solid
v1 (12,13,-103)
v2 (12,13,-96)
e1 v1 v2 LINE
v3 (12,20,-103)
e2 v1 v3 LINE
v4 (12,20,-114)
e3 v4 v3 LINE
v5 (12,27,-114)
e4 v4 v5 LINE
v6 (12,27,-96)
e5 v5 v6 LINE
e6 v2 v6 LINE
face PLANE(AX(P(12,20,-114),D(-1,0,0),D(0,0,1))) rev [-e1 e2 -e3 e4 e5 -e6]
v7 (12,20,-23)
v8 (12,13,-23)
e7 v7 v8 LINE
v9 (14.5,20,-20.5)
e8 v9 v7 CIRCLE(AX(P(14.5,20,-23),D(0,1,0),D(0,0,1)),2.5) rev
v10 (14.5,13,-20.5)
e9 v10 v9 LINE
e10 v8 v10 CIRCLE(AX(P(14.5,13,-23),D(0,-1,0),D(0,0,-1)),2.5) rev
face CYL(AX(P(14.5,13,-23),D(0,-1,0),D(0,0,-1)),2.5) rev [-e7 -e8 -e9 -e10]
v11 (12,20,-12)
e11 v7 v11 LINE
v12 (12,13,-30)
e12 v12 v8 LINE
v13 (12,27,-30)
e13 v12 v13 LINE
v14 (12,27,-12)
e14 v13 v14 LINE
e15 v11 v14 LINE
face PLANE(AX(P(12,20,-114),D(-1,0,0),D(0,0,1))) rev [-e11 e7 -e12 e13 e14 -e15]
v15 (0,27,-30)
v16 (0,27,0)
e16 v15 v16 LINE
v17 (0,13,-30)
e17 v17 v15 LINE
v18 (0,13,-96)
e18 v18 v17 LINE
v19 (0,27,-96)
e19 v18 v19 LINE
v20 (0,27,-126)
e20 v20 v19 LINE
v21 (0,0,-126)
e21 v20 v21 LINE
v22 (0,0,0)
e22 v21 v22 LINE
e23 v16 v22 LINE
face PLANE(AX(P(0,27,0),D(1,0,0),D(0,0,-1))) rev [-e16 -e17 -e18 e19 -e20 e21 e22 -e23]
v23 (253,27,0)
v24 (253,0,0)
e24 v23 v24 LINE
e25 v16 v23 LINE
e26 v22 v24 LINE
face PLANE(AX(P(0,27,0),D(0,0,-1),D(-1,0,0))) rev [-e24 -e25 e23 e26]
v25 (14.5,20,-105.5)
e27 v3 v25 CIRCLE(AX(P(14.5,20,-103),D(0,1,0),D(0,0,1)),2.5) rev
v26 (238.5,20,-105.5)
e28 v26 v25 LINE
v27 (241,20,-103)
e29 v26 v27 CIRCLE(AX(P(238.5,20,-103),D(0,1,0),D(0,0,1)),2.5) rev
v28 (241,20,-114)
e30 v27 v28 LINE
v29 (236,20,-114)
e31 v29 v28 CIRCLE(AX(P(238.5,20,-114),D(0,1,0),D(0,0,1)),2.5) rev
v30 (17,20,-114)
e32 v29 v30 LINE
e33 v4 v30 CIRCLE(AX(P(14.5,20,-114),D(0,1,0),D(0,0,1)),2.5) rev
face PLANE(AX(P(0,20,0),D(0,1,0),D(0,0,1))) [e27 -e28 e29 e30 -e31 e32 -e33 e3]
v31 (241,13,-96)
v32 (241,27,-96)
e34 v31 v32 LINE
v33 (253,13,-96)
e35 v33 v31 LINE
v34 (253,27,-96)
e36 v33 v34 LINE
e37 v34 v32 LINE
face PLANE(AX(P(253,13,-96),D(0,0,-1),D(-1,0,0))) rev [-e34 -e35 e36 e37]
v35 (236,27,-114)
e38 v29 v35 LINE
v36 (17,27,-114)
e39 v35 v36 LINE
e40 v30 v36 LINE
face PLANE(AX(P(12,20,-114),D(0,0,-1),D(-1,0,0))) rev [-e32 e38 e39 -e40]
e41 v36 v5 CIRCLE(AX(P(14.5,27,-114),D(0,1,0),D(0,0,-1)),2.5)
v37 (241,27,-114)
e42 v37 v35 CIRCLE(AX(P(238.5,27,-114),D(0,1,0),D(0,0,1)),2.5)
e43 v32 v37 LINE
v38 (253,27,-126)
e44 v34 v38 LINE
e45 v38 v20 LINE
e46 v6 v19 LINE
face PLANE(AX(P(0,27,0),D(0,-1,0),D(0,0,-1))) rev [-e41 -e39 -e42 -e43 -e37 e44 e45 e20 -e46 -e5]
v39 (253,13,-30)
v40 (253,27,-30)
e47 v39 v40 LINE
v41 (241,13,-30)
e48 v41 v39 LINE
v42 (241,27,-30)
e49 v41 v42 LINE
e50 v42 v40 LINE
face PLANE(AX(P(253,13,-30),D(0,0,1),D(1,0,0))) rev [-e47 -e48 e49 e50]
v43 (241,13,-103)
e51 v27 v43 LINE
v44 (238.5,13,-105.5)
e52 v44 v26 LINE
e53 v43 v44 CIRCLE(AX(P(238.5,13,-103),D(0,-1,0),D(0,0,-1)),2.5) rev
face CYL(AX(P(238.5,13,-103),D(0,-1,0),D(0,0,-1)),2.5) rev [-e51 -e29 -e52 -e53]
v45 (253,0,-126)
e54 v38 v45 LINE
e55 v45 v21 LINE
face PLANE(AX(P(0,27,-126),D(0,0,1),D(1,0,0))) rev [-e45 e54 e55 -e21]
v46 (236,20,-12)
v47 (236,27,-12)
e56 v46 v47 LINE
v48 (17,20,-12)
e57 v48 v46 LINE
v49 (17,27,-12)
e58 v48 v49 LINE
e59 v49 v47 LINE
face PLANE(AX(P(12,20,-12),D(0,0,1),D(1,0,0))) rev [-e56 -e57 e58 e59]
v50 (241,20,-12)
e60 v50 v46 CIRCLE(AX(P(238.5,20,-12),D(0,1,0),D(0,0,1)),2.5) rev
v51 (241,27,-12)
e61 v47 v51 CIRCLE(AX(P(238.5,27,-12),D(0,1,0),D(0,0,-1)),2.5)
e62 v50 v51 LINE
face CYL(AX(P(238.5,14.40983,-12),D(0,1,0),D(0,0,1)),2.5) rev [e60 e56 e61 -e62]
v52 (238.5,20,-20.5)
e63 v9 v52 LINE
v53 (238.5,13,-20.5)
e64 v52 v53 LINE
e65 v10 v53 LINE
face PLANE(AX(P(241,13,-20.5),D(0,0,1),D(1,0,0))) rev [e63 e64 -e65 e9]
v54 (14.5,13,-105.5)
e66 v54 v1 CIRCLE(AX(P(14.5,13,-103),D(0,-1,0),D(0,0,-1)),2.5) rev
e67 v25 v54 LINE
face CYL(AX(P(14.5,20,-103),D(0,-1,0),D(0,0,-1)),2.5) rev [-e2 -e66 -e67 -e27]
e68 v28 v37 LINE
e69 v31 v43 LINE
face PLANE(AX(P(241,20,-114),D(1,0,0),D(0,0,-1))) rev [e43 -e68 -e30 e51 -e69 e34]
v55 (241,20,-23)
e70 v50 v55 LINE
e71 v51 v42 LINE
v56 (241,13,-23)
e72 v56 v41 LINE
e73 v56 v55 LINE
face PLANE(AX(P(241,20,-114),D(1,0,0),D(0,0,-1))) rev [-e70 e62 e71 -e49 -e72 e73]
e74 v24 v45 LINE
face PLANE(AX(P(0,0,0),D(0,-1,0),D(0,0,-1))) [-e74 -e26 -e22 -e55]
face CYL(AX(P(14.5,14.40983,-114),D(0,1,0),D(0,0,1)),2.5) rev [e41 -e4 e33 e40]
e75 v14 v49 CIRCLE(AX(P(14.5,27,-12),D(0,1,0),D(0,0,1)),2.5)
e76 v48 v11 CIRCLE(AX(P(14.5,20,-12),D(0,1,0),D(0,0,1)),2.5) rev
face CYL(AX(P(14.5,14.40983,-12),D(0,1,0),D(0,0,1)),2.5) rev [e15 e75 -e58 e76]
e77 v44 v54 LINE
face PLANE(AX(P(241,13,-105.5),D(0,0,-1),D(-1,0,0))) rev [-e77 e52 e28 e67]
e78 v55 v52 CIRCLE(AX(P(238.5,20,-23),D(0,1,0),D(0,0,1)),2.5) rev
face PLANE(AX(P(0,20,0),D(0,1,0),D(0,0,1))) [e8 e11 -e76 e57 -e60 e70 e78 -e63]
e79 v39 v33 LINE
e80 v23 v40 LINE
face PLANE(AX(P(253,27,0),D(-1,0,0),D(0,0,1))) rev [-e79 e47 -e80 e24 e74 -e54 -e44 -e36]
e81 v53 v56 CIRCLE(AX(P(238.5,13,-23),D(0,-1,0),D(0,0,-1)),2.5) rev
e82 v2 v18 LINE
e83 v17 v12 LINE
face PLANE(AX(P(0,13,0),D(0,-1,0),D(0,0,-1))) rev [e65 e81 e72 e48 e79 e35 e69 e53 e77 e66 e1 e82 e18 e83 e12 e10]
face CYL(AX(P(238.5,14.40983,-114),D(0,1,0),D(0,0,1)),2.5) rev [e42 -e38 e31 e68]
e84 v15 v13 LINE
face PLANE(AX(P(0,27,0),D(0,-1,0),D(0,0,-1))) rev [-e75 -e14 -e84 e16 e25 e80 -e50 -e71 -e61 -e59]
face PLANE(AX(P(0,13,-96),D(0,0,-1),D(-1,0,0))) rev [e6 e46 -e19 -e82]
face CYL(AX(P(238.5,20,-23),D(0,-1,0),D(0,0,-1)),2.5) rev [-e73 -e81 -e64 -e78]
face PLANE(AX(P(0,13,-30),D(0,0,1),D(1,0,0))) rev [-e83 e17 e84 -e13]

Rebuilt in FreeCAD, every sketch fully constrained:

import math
import FreeCAD as App
import Part
import Sketcher
from FreeCAD import Vector


def edges_at(feature, points):
    """Names of the edges that pass closest to the given points."""
    edges = feature.Shape.Edges
    near = lambda p: min(range(len(edges)), key=lambda i: edges[i].distToShape(Part.Vertex(*p))[0])
    return sorted({f"Edge{near(p) + 1}" for p in points})

doc = App.newDocument("Part")
params = doc.addObject("Spreadsheet::Sheet", "Params")
for row, (alias, value) in enumerate([
    ("sketch1_width", "253 mm"),
    ("sketch1_height", "126 mm"),
    ("pad1_length", "27 mm"),
    ("sketch2_width", "229 mm"),
    ("sketch2_height", "102 mm"),
    ("pocket1_length", "7 mm"),
    ("sketch3_width", "229 mm"),
    ("sketch3_height", "85 mm"),
    ("pocket2_length", "7 mm"),
    ("sketch4_width", "12 mm"),
    ("sketch4_height", "66 mm"),
    ("pocket3_length", "14 mm"),
    ("sketch5_width", "12 mm"),
    ("sketch5_height", "66 mm"),
    ("pocket4_length", "14 mm"),
    ("sketch6_radius", "2.5 mm"),
    ("pocket5_length", "7 mm"),
    ("fillet_radius", "2.5 mm"),
], start=1):
    params.set(f"A{row}", alias)
    params.set(f"B{row}", "=" + value)
    params.setAlias(f"B{row}", alias)

body = doc.addObject("PartDesign::Body", "Body")

sketch1 = body.newObject("Sketcher::SketchObject", "Sketch")
sketch1.AttachmentSupport = (doc.getObject("XZ_Plane"), [""])
sketch1.MapMode = "FlatFace"
sketch1.addGeometry([
    Part.LineSegment(Vector(0, -126, 0), Vector(0, 0, 0)),
    Part.LineSegment(Vector(0, 0, 0), Vector(253, 0, 0)),
    Part.LineSegment(Vector(253, 0, 0), Vector(253, -126, 0)),
    Part.LineSegment(Vector(253, -126, 0), Vector(0, -126, 0)),
], False)
sketch1.addConstraint([
    Sketcher.Constraint("Coincident", 0, 2, 1, 1),
    Sketcher.Constraint("Coincident", 1, 2, 2, 1),
    Sketcher.Constraint("Coincident", 2, 2, 3, 1),
    Sketcher.Constraint("Coincident", 3, 2, 0, 1),
    Sketcher.Constraint("Vertical", 0),
    Sketcher.Constraint("Horizontal", 1),
    Sketcher.Constraint("Vertical", 2),
    Sketcher.Constraint("Horizontal", 3),
    Sketcher.Constraint("Coincident", 0, 2, -1, 1),
    Sketcher.Constraint("DistanceX", 1, 1, 1, 2, 253.0),
    Sketcher.Constraint("DistanceY", 0, 1, 0, 2, 126.0),
])
sketch1.setExpression("Constraints[9]", "Params.sketch1_width")
sketch1.setExpression("Constraints[10]", "Params.sketch1_height")
pad1 = body.newObject("PartDesign::Pad", "Pad")
pad1.Profile = sketch1
pad1.setExpression("Length", "Params.pad1_length")
pad1.Reversed = True

sketch2 = body.newObject("Sketcher::SketchObject", "Sketch001")
sketch2.AttachmentSupport = (doc.getObject("XZ_Plane"), [""])
sketch2.MapMode = "FlatFace"
sketch2.AttachmentOffset = App.Placement(Vector(0, 0, -27), App.Rotation())
sketch2.addGeometry([
    Part.LineSegment(Vector(12, -114, 0), Vector(12, -12, 0)),
    Part.LineSegment(Vector(12, -12, 0), Vector(241, -12, 0)),
    Part.LineSegment(Vector(241, -12, 0), Vector(241, -114, 0)),
    Part.LineSegment(Vector(241, -114, 0), Vector(12, -114, 0)),
], False)
sketch2.addConstraint([
    Sketcher.Constraint("Coincident", 0, 2, 1, 1),
    Sketcher.Constraint("Coincident", 1, 2, 2, 1),
    Sketcher.Constraint("Coincident", 2, 2, 3, 1),
    Sketcher.Constraint("Coincident", 3, 2, 0, 1),
    Sketcher.Constraint("Vertical", 0),
    Sketcher.Constraint("Horizontal", 1),
    Sketcher.Constraint("Vertical", 2),
    Sketcher.Constraint("Horizontal", 3),
    Sketcher.Constraint("DistanceX", 1, 1, 1, 2, 229.0),
    Sketcher.Constraint("DistanceY", 0, 1, 0, 2, 102.0),
    Sketcher.Constraint("DistanceX", -1, 1, 0, 2, 12.0),
    Sketcher.Constraint("DistanceY", 0, 2, -1, 1, 12.0),
])
sketch2.setExpression("Constraints[8]", "Params.sketch2_width")
sketch2.setExpression("Constraints[9]", "Params.sketch2_height")
pocket1 = body.newObject("PartDesign::Pocket", "Pocket")
pocket1.Profile = sketch2
pocket1.setExpression("Length", "Params.pocket1_length")
pocket1.Reversed = True

sketch3 = body.newObject("Sketcher::SketchObject", "Sketch002")
sketch3.AttachmentSupport = (doc.getObject("XZ_Plane"), [""])
sketch3.MapMode = "FlatFace"
sketch3.AttachmentOffset = App.Placement(Vector(0, 0, -20), App.Rotation())
sketch3.addGeometry([
    Part.LineSegment(Vector(12, -105.5, 0), Vector(12, -20.5, 0)),
    Part.LineSegment(Vector(12, -20.5, 0), Vector(241, -20.5, 0)),
    Part.LineSegment(Vector(241, -20.5, 0), Vector(241, -105.5, 0)),
    Part.LineSegment(Vector(241, -105.5, 0), Vector(12, -105.5, 0)),
], False)
sketch3.addConstraint([
    Sketcher.Constraint("Coincident", 0, 2, 1, 1),
    Sketcher.Constraint("Coincident", 1, 2, 2, 1),
    Sketcher.Constraint("Coincident", 2, 2, 3, 1),
    Sketcher.Constraint("Coincident", 3, 2, 0, 1),
    Sketcher.Constraint("Vertical", 0),
    Sketcher.Constraint("Horizontal", 1),
    Sketcher.Constraint("Vertical", 2),
    Sketcher.Constraint("Horizontal", 3),
    Sketcher.Constraint("DistanceX", 1, 1, 1, 2, 229.0),
    Sketcher.Constraint("DistanceY", 0, 1, 0, 2, 85.0),
    Sketcher.Constraint("DistanceX", -1, 1, 0, 2, 12.0),
    Sketcher.Constraint("DistanceY", 0, 2, -1, 1, 20.5),
])
sketch3.setExpression("Constraints[8]", "Params.sketch3_width")
sketch3.setExpression("Constraints[9]", "Params.sketch3_height")
pocket2 = body.newObject("PartDesign::Pocket", "Pocket001")
pocket2.Profile = sketch3
pocket2.setExpression("Length", "Params.pocket2_length")
pocket2.Reversed = True

sketch4 = body.newObject("Sketcher::SketchObject", "Sketch003")
sketch4.AttachmentSupport = (doc.getObject("XZ_Plane"), [""])
sketch4.MapMode = "FlatFace"
sketch4.AttachmentOffset = App.Placement(Vector(0, 0, -27), App.Rotation())
sketch4.addGeometry([
    Part.LineSegment(Vector(0, -96, 0), Vector(0, -30, 0)),
    Part.LineSegment(Vector(0, -30, 0), Vector(12, -30, 0)),
    Part.LineSegment(Vector(12, -30, 0), Vector(12, -96, 0)),
    Part.LineSegment(Vector(12, -96, 0), Vector(0, -96, 0)),
], False)
sketch4.addConstraint([
    Sketcher.Constraint("Coincident", 0, 2, 1, 1),
    Sketcher.Constraint("Coincident", 1, 2, 2, 1),
    Sketcher.Constraint("Coincident", 2, 2, 3, 1),
    Sketcher.Constraint("Coincident", 3, 2, 0, 1),
    Sketcher.Constraint("Vertical", 0),
    Sketcher.Constraint("Horizontal", 1),
    Sketcher.Constraint("Vertical", 2),
    Sketcher.Constraint("Horizontal", 3),
    Sketcher.Constraint("PointOnObject", 0, 2, -2),
    Sketcher.Constraint("DistanceX", 1, 1, 1, 2, 12.0),
    Sketcher.Constraint("DistanceY", 0, 1, 0, 2, 66.0),
    Sketcher.Constraint("DistanceY", 0, 2, -1, 1, 30.0),
])
sketch4.setExpression("Constraints[9]", "Params.sketch4_width")
sketch4.setExpression("Constraints[10]", "Params.sketch4_height")
pocket3 = body.newObject("PartDesign::Pocket", "Pocket002")
pocket3.Profile = sketch4
pocket3.setExpression("Length", "Params.pocket3_length")
pocket3.Reversed = True

sketch5 = body.newObject("Sketcher::SketchObject", "Sketch004")
sketch5.AttachmentSupport = (doc.getObject("XZ_Plane"), [""])
sketch5.MapMode = "FlatFace"
sketch5.AttachmentOffset = App.Placement(Vector(0, 0, -27), App.Rotation())
sketch5.addGeometry([
    Part.LineSegment(Vector(241, -96, 0), Vector(241, -30, 0)),
    Part.LineSegment(Vector(241, -30, 0), Vector(253, -30, 0)),
    Part.LineSegment(Vector(253, -30, 0), Vector(253, -96, 0)),
    Part.LineSegment(Vector(253, -96, 0), Vector(241, -96, 0)),
], False)
sketch5.addConstraint([
    Sketcher.Constraint("Coincident", 0, 2, 1, 1),
    Sketcher.Constraint("Coincident", 1, 2, 2, 1),
    Sketcher.Constraint("Coincident", 2, 2, 3, 1),
    Sketcher.Constraint("Coincident", 3, 2, 0, 1),
    Sketcher.Constraint("Vertical", 0),
    Sketcher.Constraint("Horizontal", 1),
    Sketcher.Constraint("Vertical", 2),
    Sketcher.Constraint("Horizontal", 3),
    Sketcher.Constraint("DistanceX", 1, 1, 1, 2, 12.0),
    Sketcher.Constraint("DistanceY", 0, 1, 0, 2, 66.0),
    Sketcher.Constraint("DistanceX", -1, 1, 0, 2, 241.0),
    Sketcher.Constraint("DistanceY", 0, 2, -1, 1, 30.0),
])
sketch5.setExpression("Constraints[8]", "Params.sketch5_width")
sketch5.setExpression("Constraints[9]", "Params.sketch5_height")
pocket4 = body.newObject("PartDesign::Pocket", "Pocket003")
pocket4.Profile = sketch5
pocket4.setExpression("Length", "Params.pocket4_length")
pocket4.Reversed = True

sketch6 = body.newObject("Sketcher::SketchObject", "Sketch005")
sketch6.AttachmentSupport = (doc.getObject("XZ_Plane"), [""])
sketch6.MapMode = "FlatFace"
sketch6.AttachmentOffset = App.Placement(Vector(0, 0, -27), App.Rotation())
sketch6.addGeometry([
    Part.LineSegment(Vector(17, -12, 0), Vector(12, -12, 0)),
    Part.ArcOfCircle(Part.Circle(Vector(14.5, -12, 0), Vector(0, 0, 1), 2.5), math.radians(0), math.radians(180)),
    Part.LineSegment(Vector(241, -12, 0), Vector(236, -12, 0)),
    Part.ArcOfCircle(Part.Circle(Vector(238.5, -12, 0), Vector(0, 0, 1), 2.5), math.radians(0), math.radians(180)),
    Part.LineSegment(Vector(12, -114, 0), Vector(17, -114, 0)),
    Part.ArcOfCircle(Part.Circle(Vector(14.5, -114, 0), Vector(0, 0, 1), 2.5), math.radians(180), math.radians(360)),
    Part.LineSegment(Vector(236, -114, 0), Vector(241, -114, 0)),
    Part.ArcOfCircle(Part.Circle(Vector(238.5, -114, 0), Vector(0, 0, 1), 2.5), math.radians(180), math.radians(360)),
], False)
sketch6.addConstraint([
    Sketcher.Constraint("Coincident", 0, 1, 1, 1),
    Sketcher.Constraint("Coincident", 1, 2, 0, 2),
    Sketcher.Constraint("Coincident", 2, 1, 3, 1),
    Sketcher.Constraint("Coincident", 3, 2, 2, 2),
    Sketcher.Constraint("Coincident", 4, 1, 5, 1),
    Sketcher.Constraint("Coincident", 5, 2, 4, 2),
    Sketcher.Constraint("Coincident", 6, 1, 7, 1),
    Sketcher.Constraint("Coincident", 7, 2, 6, 2),
    Sketcher.Constraint("Horizontal", 0),
    Sketcher.Constraint("Horizontal", 2),
    Sketcher.Constraint("Horizontal", 4),
    Sketcher.Constraint("Horizontal", 6),
    Sketcher.Constraint("Equal", 1, 3),
    Sketcher.Constraint("Equal", 3, 5),
    Sketcher.Constraint("Equal", 5, 7),
    Sketcher.Constraint("Horizontal", 1, 3, 3, 3),
    Sketcher.Constraint("Horizontal", 5, 3, 7, 3),
    Sketcher.Constraint("Horizontal", 3, 3, 0, 1),
    Sketcher.Constraint("Horizontal", 1, 2, 2, 1),
    Sketcher.Constraint("Horizontal", 7, 3, 4, 1),
    Sketcher.Constraint("Horizontal", 5, 2, 6, 1),
    Sketcher.Constraint("Vertical", 1, 3, 5, 3),
    Sketcher.Constraint("Vertical", 3, 3, 7, 3),
    Sketcher.Constraint("Radius", 1, 2.5),
    Sketcher.Constraint("DistanceY", 1, 3, -1, 1, 12.0),
    Sketcher.Constraint("DistanceY", 5, 3, -1, 1, 114.0),
    Sketcher.Constraint("DistanceX", -1, 1, 0, 1, 17.0),
    Sketcher.Constraint("DistanceX", -1, 1, 2, 1, 241.0),
])
sketch6.setExpression("Constraints[23]", "Params.sketch6_radius")
pocket5 = body.newObject("PartDesign::Pocket", "Pocket004")
pocket5.Profile = sketch6
pocket5.setExpression("Length", "Params.pocket5_length")
pocket5.Reversed = True
doc.recompute()

fillet = body.newObject("PartDesign::Fillet", "Fillet")
fillet.Base = (pocket5, edges_at(pocket5, [
    (241, 16.5, -105.5),
    (241, 16.5, -20.5),
    (12, 16.5, -20.5),
    (12, 16.5, -105.5),
]))
fillet.setExpression("Radius", "Params.fillet_radius")

doc.recompute()
